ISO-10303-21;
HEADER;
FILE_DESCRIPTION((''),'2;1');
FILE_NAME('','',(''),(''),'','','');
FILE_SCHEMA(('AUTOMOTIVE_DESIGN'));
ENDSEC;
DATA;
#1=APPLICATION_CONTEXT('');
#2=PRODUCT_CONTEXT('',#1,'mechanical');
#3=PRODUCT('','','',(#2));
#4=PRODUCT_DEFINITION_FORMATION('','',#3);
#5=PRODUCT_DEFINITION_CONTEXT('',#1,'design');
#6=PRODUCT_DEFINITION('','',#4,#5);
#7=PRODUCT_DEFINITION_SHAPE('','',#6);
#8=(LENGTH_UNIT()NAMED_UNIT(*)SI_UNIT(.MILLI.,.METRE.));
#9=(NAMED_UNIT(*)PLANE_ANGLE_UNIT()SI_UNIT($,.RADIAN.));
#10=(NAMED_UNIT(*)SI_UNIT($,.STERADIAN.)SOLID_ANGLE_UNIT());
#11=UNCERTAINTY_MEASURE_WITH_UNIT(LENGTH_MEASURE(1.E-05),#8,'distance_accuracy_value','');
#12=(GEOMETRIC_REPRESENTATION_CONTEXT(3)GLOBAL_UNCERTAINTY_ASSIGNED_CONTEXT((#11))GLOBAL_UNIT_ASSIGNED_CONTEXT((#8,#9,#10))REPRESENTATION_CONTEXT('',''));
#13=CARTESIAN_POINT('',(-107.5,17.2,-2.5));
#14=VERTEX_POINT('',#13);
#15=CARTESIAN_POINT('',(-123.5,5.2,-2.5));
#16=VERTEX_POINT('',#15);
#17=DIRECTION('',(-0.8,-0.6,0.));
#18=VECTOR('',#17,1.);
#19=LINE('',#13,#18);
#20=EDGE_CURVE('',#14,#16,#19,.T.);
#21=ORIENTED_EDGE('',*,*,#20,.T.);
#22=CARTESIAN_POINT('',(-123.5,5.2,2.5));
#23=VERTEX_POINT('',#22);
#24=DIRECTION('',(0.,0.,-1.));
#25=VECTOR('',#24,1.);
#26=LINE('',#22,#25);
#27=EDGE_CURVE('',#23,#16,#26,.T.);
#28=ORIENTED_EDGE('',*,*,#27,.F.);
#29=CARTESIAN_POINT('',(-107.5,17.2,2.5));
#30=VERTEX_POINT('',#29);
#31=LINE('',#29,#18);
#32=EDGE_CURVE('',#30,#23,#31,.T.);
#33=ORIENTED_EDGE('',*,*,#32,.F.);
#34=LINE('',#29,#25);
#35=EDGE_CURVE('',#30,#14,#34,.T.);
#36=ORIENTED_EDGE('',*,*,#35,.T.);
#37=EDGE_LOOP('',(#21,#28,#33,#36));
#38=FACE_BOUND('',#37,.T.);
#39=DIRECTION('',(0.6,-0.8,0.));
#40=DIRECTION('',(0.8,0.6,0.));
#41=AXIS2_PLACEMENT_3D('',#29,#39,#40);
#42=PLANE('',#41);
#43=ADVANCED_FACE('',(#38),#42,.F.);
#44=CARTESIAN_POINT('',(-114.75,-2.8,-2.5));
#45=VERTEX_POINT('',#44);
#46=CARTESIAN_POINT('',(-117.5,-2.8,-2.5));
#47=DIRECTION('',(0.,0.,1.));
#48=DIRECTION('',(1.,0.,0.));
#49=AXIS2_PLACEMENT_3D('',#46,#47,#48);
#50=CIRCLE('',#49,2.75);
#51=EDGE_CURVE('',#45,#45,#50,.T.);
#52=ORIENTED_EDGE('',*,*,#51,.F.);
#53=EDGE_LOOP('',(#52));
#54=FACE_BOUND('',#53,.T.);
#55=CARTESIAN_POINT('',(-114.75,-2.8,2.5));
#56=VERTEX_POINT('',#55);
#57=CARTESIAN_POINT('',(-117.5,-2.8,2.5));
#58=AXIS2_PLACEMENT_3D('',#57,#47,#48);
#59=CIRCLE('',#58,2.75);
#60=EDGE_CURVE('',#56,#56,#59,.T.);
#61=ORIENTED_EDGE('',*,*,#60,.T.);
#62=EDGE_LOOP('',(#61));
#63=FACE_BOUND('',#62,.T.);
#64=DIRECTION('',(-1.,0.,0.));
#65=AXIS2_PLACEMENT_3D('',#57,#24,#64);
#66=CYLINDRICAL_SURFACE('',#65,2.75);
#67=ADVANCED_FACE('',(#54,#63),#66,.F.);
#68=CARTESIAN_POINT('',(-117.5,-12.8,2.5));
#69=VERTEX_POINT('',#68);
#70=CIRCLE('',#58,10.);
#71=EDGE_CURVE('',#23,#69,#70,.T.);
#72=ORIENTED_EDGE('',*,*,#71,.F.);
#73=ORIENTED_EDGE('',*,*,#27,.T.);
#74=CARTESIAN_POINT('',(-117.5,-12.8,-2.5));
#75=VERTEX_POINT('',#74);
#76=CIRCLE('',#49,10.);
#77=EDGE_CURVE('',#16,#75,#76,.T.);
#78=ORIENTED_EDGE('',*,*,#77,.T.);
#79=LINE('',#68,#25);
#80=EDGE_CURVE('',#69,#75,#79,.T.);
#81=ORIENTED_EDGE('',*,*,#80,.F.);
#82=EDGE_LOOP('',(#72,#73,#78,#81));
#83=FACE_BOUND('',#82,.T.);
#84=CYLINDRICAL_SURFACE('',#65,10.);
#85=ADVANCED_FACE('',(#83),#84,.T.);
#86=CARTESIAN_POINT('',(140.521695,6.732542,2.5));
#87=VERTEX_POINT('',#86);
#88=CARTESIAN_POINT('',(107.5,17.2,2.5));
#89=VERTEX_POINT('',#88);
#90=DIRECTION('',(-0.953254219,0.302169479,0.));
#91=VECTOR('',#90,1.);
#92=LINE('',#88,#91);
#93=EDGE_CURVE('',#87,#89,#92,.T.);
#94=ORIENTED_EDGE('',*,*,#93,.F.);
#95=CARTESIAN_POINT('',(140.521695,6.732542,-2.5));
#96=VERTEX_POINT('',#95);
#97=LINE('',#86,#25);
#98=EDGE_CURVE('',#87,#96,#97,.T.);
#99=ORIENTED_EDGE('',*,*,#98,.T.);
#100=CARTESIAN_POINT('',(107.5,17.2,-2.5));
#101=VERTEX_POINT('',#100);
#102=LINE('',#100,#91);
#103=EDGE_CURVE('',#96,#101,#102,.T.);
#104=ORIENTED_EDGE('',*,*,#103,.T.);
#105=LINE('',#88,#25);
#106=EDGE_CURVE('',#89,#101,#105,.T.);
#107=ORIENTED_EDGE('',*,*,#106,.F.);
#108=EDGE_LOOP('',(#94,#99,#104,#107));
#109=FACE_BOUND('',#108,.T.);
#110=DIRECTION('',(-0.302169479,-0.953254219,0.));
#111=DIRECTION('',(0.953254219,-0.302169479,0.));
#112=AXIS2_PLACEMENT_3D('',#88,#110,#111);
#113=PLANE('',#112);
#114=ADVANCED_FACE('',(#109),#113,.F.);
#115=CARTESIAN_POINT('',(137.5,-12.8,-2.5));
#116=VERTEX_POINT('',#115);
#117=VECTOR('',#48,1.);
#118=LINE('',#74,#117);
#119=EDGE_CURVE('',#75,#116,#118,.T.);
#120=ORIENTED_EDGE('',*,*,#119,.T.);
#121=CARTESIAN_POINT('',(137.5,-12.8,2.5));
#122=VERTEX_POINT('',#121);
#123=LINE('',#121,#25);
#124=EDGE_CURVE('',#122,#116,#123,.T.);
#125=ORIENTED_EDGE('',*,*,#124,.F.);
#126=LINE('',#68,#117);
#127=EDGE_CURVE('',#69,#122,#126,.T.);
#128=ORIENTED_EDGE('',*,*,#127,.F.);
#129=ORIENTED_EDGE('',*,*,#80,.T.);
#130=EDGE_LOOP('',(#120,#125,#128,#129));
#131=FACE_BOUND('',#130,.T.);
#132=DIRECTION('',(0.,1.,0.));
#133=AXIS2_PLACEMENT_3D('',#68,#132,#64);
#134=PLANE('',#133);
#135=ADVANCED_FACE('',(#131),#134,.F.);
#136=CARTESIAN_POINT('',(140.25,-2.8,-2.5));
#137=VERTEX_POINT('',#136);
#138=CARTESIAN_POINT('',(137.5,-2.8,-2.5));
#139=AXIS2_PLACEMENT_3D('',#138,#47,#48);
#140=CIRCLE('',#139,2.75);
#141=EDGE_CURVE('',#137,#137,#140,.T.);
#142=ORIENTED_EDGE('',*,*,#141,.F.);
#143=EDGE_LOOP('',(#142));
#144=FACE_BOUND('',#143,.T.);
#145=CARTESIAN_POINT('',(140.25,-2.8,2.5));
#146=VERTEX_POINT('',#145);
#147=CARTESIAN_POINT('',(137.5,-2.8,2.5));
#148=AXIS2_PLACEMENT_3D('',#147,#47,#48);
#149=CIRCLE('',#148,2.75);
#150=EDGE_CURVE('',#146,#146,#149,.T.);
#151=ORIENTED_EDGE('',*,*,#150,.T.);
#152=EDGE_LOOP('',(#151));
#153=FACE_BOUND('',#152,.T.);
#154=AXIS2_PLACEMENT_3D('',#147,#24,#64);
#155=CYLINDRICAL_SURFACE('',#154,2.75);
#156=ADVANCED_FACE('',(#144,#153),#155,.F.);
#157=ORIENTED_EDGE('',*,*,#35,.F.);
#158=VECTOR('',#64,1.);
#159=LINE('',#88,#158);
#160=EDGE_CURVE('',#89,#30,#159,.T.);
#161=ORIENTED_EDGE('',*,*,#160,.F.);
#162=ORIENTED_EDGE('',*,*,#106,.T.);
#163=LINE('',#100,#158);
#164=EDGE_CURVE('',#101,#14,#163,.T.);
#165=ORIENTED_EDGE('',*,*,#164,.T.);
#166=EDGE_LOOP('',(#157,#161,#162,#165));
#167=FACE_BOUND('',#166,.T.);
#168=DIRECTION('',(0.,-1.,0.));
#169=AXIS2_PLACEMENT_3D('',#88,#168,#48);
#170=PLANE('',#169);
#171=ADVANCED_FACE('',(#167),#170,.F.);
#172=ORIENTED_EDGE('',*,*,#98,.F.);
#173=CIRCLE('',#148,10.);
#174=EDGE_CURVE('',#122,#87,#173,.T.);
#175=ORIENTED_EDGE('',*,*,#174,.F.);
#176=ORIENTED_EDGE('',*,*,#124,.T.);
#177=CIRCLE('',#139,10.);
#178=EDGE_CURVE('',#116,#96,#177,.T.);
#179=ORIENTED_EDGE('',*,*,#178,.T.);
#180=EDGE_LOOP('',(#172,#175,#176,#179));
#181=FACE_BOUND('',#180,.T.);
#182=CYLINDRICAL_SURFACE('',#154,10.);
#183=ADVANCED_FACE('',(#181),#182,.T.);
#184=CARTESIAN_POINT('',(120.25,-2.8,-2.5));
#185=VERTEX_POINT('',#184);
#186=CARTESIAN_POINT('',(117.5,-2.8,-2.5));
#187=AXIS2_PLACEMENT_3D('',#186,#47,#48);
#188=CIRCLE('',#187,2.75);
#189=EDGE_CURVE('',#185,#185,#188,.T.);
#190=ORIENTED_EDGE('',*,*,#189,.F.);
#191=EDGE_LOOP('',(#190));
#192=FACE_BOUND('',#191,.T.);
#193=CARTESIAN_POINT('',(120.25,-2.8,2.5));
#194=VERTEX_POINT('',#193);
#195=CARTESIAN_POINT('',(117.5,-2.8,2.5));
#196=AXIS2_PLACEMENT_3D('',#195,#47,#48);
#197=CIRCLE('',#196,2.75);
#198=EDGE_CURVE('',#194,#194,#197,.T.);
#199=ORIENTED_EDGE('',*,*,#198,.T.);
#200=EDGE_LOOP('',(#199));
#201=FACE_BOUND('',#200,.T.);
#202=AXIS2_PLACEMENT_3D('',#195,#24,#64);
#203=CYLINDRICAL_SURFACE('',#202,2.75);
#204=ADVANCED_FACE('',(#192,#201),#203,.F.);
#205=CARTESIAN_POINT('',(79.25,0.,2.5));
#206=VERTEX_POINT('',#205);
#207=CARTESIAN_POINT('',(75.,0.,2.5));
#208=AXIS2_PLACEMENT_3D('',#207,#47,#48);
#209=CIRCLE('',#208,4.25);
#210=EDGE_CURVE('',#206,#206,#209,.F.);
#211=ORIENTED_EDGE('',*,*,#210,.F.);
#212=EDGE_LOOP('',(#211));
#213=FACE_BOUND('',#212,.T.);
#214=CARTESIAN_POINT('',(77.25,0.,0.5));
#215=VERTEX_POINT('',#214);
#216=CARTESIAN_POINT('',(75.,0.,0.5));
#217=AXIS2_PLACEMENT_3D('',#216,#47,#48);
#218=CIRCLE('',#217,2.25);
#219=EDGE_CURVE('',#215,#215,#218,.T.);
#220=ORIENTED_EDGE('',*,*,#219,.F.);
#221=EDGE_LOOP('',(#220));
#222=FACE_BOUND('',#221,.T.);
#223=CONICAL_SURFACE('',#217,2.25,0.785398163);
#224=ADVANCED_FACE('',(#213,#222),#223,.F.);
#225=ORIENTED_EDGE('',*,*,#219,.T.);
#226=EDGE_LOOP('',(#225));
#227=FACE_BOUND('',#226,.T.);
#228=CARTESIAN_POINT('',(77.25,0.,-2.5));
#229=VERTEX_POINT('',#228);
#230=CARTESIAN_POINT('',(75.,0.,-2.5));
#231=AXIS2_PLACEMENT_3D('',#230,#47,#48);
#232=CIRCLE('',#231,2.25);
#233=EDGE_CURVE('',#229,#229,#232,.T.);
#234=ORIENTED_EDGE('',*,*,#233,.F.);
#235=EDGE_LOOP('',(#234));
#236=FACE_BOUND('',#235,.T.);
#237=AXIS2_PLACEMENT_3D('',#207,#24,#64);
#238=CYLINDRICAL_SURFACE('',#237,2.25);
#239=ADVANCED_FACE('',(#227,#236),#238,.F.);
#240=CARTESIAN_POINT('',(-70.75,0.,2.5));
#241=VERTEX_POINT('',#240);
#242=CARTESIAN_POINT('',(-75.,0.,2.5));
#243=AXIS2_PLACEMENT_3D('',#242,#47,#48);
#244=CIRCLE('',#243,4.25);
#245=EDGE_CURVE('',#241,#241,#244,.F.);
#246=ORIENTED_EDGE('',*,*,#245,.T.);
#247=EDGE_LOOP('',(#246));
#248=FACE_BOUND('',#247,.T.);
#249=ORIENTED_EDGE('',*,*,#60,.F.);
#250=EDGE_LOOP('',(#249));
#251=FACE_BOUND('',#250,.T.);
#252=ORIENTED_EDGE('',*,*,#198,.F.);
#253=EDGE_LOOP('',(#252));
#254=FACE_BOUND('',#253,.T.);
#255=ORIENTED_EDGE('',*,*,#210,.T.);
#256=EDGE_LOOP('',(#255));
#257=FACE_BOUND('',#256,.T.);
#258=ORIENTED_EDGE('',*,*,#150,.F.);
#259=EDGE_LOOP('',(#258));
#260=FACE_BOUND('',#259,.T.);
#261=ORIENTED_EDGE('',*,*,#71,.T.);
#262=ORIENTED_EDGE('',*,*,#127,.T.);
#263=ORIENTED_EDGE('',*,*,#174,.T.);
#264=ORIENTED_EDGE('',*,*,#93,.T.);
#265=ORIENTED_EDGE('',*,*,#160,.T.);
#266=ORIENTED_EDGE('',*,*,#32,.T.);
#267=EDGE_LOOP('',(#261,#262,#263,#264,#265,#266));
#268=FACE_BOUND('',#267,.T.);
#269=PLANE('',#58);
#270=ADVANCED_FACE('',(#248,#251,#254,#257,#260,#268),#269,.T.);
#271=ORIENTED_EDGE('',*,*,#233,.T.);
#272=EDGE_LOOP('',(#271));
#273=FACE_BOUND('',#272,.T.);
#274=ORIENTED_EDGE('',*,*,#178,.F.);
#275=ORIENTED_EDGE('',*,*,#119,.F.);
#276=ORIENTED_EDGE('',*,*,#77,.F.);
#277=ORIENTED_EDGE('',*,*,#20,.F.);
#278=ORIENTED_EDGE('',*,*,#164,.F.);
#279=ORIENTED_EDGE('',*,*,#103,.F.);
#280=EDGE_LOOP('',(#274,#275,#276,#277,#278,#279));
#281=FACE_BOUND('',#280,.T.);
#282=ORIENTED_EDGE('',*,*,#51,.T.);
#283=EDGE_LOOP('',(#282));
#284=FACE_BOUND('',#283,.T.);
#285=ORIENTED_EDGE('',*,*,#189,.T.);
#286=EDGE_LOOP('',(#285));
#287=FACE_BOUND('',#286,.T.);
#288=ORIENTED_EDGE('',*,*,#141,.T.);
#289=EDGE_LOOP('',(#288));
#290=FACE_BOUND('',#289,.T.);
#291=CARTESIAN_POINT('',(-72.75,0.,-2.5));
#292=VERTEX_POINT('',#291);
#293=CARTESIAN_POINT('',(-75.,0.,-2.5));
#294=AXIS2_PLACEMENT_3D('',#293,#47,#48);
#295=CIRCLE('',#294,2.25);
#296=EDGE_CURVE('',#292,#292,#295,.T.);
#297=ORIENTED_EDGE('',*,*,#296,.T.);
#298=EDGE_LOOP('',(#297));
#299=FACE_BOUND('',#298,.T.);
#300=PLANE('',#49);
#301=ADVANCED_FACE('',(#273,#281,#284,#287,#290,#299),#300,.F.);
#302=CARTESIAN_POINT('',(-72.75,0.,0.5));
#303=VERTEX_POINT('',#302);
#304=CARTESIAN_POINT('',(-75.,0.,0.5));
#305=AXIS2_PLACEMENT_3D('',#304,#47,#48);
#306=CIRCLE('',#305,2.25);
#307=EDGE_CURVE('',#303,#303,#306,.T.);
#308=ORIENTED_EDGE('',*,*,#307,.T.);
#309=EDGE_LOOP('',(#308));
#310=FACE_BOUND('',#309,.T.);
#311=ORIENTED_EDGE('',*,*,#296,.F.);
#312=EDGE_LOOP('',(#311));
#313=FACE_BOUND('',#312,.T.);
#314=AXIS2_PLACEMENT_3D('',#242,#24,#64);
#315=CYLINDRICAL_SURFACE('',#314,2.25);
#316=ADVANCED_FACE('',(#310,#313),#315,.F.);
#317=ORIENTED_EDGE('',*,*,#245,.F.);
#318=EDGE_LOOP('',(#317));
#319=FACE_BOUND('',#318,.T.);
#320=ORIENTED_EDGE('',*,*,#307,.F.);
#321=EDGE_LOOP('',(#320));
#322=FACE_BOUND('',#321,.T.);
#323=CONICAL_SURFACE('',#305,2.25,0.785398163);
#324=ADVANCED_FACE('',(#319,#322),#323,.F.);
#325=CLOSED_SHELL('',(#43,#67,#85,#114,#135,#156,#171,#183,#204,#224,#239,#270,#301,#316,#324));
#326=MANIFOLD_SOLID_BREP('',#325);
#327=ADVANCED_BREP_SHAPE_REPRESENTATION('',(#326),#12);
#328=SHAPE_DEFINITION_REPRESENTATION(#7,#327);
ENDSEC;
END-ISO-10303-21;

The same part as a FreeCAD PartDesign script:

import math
import FreeCAD as App
import Part
import Sketcher

V = App.Vector
Q = App.Units.Quantity


def edges_at(feature, points):
    """Names of the edges that pass closest to the given points."""
    edges = feature.Shape.Edges
    near = lambda p: min(range(len(edges)), key=lambda i: edges[i].distToShape(Part.Vertex(*p))[0])
    return sorted({f"Edge{near(p) + 1}" for p in points})

doc = App.newDocument("Part")
body = doc.addObject("PartDesign::Body", "Body")

sketch1 = body.newObject("Sketcher::SketchObject", "Sketch")
sketch1.AttachmentSupport = (doc.getObject("XY_Plane"), [""])
sketch1.MapMode = "FlatFace"
sketch1.addGeometry([
    Part.LineSegment(V(-117.5, -12.8, 0), V(137.5, -12.8, 0)),
    Part.ArcOfCircle(Part.Circle(V(137.5, -2.8, 0), V(0, 0, 1), 10), math.radians(-90), math.radians(72.412046)),
    Part.LineSegment(V(140.521695, 6.732542, 0), V(107.5, 17.2, 0)),
    Part.LineSegment(V(107.5, 17.2, 0), V(-107.5, 17.2, 0)),
    Part.LineSegment(V(-107.5, 17.2, 0), V(-123.5, 5.2, 0)),
    Part.ArcOfCircle(Part.Circle(V(-117.5, -2.8, 0), V(0, 0, 1), 10), math.radians(126.869898), math.radians(270)),
    Part.Circle(V(-117.5, -2.8, 0), V(0, 0, 1), 2.75),
    Part.Circle(V(117.5, -2.8, 0), V(0, 0, 1), 2.75),
    Part.Circle(V(137.5, -2.8, 0), V(0, 0, 1), 2.75),
    Part.Circle(V(-75, 0, 0), V(0, 0, 1), 2.25),
    Part.Circle(V(75, 0, 0), V(0, 0, 1), 2.25),
], False)
sketch1.addConstraint([
    Sketcher.Constraint("Tangent", 0, 2, 1, 1),
    Sketcher.Constraint("Tangent", 1, 2, 2, 1),
    Sketcher.Constraint("Coincident", 2, 2, 3, 1),
    Sketcher.Constraint("Coincident", 3, 2, 4, 1),
    Sketcher.Constraint("Tangent", 4, 2, 5, 1),
    Sketcher.Constraint("Tangent", 5, 2, 0, 1),
    Sketcher.Constraint("Horizontal", 0),
    Sketcher.Constraint("Horizontal", 3),
    Sketcher.Constraint("Coincident", 6, 3, 5, 3),
    Sketcher.Constraint("Coincident", 8, 3, 1, 3),
    Sketcher.Constraint("Equal", 1, 5),
    Sketcher.Constraint("Equal", 6, 7),
    Sketcher.Constraint("Equal", 7, 8),
    Sketcher.Constraint("Equal", 9, 10),
    Sketcher.Constraint("Symmetric", 9, 3, 10, 3, -1, 1),
    Sketcher.Constraint("Symmetric", 5, 3, 7, 3, -2),
    Sketcher.Constraint("PointOnObject", 9, 3, -1),
    Sketcher.Constraint("Radius", 1, Q("10 mm")),
    Sketcher.Constraint("Diameter", 6, Q("5.5 mm")),
    Sketcher.Constraint("Diameter", 9, Q("4.5 mm")),
    Sketcher.Constraint("DistanceX", 0, 1, 0, 2, Q("255 mm")),
    Sketcher.Constraint("DistanceX", 3, 2, 3, 1, Q("215 mm")),
    Sketcher.Constraint("Distance", 4, Q("20 mm")),
    Sketcher.Constraint("DistanceX", 9, 3, -1, 1, Q("75 mm")),
    Sketcher.Constraint("DistanceX", 7, 3, 1, 3, Q("20 mm")),
    Sketcher.Constraint("DistanceX", 2, 2, 7, 3, Q("10 mm")),
    Sketcher.Constraint("DistanceY", 1, 3, -1, 1, Q("2.8 mm")),
])
pad1 = body.newObject("PartDesign::Pad", "Pad")
pad1.Profile = sketch1
pad1.Length = 5
pad1.Midplane = True
doc.recompute()

chamfer = body.newObject("PartDesign::Chamfer", "Chamfer")
chamfer.Base = (pad1, edges_at(pad1, [(-77.25, 0, 2.5), (72.75, 0, 2.5)]))
chamfer.Size = 2

doc.recompute()
